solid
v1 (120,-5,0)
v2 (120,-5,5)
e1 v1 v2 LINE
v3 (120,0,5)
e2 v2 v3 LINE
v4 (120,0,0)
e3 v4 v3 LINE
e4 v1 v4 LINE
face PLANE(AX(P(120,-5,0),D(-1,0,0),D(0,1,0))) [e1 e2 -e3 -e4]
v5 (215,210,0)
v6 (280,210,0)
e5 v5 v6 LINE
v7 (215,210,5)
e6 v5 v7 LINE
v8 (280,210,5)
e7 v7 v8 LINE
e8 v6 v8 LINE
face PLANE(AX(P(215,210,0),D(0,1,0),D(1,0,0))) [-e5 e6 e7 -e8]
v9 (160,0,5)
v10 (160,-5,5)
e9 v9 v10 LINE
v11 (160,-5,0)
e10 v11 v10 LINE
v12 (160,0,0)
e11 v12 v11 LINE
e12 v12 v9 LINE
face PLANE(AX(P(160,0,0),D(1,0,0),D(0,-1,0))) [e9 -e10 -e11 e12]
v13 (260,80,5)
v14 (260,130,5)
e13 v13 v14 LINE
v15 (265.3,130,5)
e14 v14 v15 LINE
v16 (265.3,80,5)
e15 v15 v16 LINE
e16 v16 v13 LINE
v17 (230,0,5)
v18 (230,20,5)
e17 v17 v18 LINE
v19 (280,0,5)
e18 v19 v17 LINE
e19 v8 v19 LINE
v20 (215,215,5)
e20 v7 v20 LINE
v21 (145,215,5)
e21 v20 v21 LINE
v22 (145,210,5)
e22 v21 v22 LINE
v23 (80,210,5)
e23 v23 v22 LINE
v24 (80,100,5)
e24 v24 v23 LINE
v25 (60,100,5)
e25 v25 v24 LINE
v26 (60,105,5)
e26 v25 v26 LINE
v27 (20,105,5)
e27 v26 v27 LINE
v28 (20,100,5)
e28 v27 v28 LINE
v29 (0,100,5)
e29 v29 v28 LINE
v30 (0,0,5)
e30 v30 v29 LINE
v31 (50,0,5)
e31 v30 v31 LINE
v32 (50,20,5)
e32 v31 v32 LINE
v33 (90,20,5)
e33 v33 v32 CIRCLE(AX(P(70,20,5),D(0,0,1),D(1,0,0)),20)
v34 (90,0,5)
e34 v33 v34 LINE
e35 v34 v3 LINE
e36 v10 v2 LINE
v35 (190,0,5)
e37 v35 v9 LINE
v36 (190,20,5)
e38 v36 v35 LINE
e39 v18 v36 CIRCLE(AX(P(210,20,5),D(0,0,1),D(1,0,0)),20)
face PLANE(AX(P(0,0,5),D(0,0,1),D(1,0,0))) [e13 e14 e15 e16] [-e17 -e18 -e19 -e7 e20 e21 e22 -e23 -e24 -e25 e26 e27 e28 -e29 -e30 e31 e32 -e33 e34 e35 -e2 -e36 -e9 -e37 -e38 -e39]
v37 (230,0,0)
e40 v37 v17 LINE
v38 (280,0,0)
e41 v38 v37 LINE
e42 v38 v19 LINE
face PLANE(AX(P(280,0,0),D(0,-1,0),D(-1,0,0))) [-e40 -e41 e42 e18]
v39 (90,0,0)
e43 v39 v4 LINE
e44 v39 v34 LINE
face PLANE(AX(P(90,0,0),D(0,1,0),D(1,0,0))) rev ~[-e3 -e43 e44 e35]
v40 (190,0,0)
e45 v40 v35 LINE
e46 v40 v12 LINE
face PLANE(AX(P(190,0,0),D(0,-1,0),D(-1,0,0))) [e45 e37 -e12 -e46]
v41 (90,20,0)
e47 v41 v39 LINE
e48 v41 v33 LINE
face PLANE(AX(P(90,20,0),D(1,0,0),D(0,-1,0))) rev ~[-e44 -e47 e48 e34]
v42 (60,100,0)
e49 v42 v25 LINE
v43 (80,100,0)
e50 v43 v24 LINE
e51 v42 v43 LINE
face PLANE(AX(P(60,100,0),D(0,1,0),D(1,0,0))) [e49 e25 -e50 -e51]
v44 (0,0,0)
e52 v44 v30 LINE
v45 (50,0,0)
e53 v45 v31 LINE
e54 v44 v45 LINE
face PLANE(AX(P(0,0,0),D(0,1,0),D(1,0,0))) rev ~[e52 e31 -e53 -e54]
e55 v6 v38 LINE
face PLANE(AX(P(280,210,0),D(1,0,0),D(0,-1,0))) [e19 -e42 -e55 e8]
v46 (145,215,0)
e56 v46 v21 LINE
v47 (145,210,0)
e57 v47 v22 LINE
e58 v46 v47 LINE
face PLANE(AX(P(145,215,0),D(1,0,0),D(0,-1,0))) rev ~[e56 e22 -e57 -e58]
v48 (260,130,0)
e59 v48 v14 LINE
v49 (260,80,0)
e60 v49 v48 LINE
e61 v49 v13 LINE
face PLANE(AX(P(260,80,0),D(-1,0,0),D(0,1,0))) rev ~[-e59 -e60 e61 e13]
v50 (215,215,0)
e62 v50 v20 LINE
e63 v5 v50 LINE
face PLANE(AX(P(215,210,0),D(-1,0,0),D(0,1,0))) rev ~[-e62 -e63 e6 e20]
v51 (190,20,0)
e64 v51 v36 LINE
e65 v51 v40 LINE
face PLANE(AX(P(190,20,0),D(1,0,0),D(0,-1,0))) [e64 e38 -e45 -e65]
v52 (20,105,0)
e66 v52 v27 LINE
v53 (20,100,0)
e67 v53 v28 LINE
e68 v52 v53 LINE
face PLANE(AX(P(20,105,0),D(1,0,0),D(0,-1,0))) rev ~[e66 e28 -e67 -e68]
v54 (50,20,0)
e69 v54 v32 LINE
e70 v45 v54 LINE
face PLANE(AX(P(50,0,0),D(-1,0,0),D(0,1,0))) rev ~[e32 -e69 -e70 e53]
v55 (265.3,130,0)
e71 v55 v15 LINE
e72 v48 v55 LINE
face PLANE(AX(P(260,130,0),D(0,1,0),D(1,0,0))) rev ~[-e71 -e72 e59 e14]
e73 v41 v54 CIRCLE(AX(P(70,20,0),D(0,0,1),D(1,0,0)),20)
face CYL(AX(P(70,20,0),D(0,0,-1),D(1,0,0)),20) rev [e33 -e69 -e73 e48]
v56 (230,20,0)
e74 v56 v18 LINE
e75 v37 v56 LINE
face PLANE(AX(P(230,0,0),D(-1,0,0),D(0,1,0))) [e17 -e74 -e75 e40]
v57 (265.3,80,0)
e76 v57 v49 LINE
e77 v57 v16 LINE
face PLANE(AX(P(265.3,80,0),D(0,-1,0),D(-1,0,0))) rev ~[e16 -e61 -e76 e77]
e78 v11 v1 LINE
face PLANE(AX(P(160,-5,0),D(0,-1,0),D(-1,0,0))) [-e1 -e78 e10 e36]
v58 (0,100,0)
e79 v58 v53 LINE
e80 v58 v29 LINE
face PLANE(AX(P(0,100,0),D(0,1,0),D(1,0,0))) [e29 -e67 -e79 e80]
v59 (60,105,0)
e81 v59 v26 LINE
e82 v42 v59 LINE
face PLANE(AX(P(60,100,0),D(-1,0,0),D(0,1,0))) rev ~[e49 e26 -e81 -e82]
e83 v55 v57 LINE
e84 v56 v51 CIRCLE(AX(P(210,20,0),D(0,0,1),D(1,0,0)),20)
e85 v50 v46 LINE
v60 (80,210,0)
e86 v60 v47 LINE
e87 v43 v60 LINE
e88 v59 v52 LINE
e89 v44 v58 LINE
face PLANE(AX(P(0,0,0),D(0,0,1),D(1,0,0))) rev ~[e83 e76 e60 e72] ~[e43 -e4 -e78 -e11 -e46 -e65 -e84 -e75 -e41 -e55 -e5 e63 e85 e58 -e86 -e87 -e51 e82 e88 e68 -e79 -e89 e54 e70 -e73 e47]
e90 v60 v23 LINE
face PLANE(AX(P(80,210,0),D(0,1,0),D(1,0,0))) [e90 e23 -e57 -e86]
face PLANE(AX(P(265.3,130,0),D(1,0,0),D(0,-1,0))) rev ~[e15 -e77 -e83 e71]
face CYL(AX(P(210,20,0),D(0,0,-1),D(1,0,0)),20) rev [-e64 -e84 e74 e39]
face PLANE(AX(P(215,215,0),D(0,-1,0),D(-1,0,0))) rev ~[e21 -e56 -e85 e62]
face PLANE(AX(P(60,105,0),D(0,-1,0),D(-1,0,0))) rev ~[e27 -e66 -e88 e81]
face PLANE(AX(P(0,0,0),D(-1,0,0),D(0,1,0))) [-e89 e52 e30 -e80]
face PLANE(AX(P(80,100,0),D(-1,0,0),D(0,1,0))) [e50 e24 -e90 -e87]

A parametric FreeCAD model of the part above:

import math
import FreeCAD as App
import Part
import Sketcher
from FreeCAD import Vector
Q = App.Units.Quantity

doc = App.newDocument("Part")
body = doc.addObject("PartDesign::Body", "Body")

# Sketch on XY plane
sketch1 = doc.addObject("Sketcher::SketchObject", "Sketch")
body.addObject(sketch1)
sketch1.AttachmentSupport = (doc.XY_Plane, [""])
sketch1.MapMode = "FlatFace"
sketch1.addGeometry([
    Part.LineSegment(Vector(0, 100, 0), Vector(0, 0, 0)),  # 0
    Part.LineSegment(Vector(0, 0, 0), Vector(50, 0, 0)),  # 1
    Part.LineSegment(Vector(50, 0, 0), Vector(50, 20, 0)),  # 2
    Part.ArcOfCircle(Part.Circle(Vector(70, 20, 0), Vector(0, 0, 1), 20), math.radians(0), math.radians(180)),  # 3
    Part.LineSegment(Vector(90, 20, 0), Vector(90, 0, 0)),  # 4
    Part.LineSegment(Vector(90, 0, 0), Vector(120, 0, 0)),  # 5
    Part.LineSegment(Vector(120, 0, 0), Vector(120, -5, 0)),  # 6
    Part.LineSegment(Vector(120, -5, 0), Vector(160, -5, 0)),  # 7
    Part.LineSegment(Vector(160, -5, 0), Vector(160, 0, 0)),  # 8
    Part.LineSegment(Vector(160, 0, 0), Vector(190, 0, 0)),  # 9
    Part.LineSegment(Vector(190, 0, 0), Vector(190, 20, 0)),  # 10
    Part.ArcOfCircle(Part.Circle(Vector(210, 20, 0), Vector(0, 0, 1), 20), math.radians(0), math.radians(180)),  # 11
    Part.LineSegment(Vector(230, 20, 0), Vector(230, 0, 0)),  # 12
    Part.LineSegment(Vector(230, 0, 0), Vector(280, 0, 0)),  # 13
    Part.LineSegment(Vector(280, 0, 0), Vector(280, 210, 0)),  # 14
    Part.LineSegment(Vector(280, 210, 0), Vector(215, 210, 0)),  # 15
    Part.LineSegment(Vector(215, 210, 0), Vector(215, 215, 0)),  # 16
    Part.LineSegment(Vector(215, 215, 0), Vector(145, 215, 0)),  # 17
    Part.LineSegment(Vector(145, 215, 0), Vector(145, 210, 0)),  # 18
    Part.LineSegment(Vector(145, 210, 0), Vector(80, 210, 0)),  # 19
    Part.LineSegment(Vector(80, 210, 0), Vector(80, 100, 0)),  # 20
    Part.LineSegment(Vector(80, 100, 0), Vector(60, 100, 0)),  # 21
    Part.LineSegment(Vector(60, 100, 0), Vector(60, 105, 0)),  # 22
    Part.LineSegment(Vector(60, 105, 0), Vector(20, 105, 0)),  # 23
    Part.LineSegment(Vector(20, 105, 0), Vector(20, 100, 0)),  # 24
    Part.LineSegment(Vector(20, 100, 0), Vector(0, 100, 0)),  # 25
    Part.LineSegment(Vector(265, 130, 0), Vector(265, 80, 0)),  # 26
    Part.LineSegment(Vector(265, 80, 0), Vector(260, 80, 0)),  # 27
    Part.LineSegment(Vector(260, 80, 0), Vector(260, 130, 0)),  # 28
    Part.LineSegment(Vector(260, 130, 0), Vector(265, 130, 0)),  # 29
], False)
sketch1.addConstraint([
    Sketcher.Constraint("Coincident", 0, 2, 1, 1),
    Sketcher.Constraint("Coincident", 1, 2, 2, 1),
    Sketcher.Constraint("Tangent", 2, 2, 3, 2),
    Sketcher.Constraint("Tangent", 3, 1, 4, 1),
    Sketcher.Constraint("Coincident", 4, 2, 5, 1),
    Sketcher.Constraint("Coincident", 5, 2, 6, 1),
    Sketcher.Constraint("Coincident", 6, 2, 7, 1),
    Sketcher.Constraint("Coincident", 7, 2, 8, 1),
    Sketcher.Constraint("Coincident", 8, 2, 9, 1),
    Sketcher.Constraint("Coincident", 9, 2, 10, 1),
    Sketcher.Constraint("Tangent", 10, 2, 11, 2),
    Sketcher.Constraint("Tangent", 11, 1, 12, 1),
    Sketcher.Constraint("Coincident", 12, 2, 13, 1),
    Sketcher.Constraint("Coincident", 13, 2, 14, 1),
    Sketcher.Constraint("Coincident", 14, 2, 15, 1),
    Sketcher.Constraint("Coincident", 15, 2, 16, 1),
    Sketcher.Constraint("Coincident", 16, 2, 17, 1),
    Sketcher.Constraint("Coincident", 17, 2, 18, 1),
    Sketcher.Constraint("Coincident", 18, 2, 19, 1),
    Sketcher.Constraint("Coincident", 19, 2, 20, 1),
    Sketcher.Constraint("Coincident", 20, 2, 21, 1),
    Sketcher.Constraint("Coincident", 21, 2, 22, 1),
    Sketcher.Constraint("Coincident", 22, 2, 23, 1),
    Sketcher.Constraint("Coincident", 23, 2, 24, 1),
    Sketcher.Constraint("Coincident", 24, 2, 25, 1),
    Sketcher.Constraint("Coincident", 25, 2, 0, 1),
    Sketcher.Constraint("Coincident", 26, 2, 27, 1),
    Sketcher.Constraint("Coincident", 27, 2, 28, 1),
    Sketcher.Constraint("Coincident", 28, 2, 29, 1),
    Sketcher.Constraint("Coincident", 29, 2, 26, 1),
    Sketcher.Constraint("Vertical", 0),
    Sketcher.Constraint("Horizontal", 1),
    Sketcher.Constraint("Vertical", 2),
    Sketcher.Constraint("Vertical", 4),
    Sketcher.Constraint("Horizontal", 5),
    Sketcher.Constraint("Vertical", 6),
    Sketcher.Constraint("Horizontal", 7),
    Sketcher.Constraint("Vertical", 8),
    Sketcher.Constraint("Horizontal", 9),
    Sketcher.Constraint("Vertical", 10),
    Sketcher.Constraint("Vertical", 12),
    Sketcher.Constraint("Horizontal", 13),
    Sketcher.Constraint("Vertical", 14),
    Sketcher.Constraint("Horizontal", 15),
    Sketcher.Constraint("Vertical", 16),
    Sketcher.Constraint("Horizontal", 17),
    Sketcher.Constraint("Vertical", 18),
    Sketcher.Constraint("Horizontal", 19),
    Sketcher.Constraint("Vertical", 20),
    Sketcher.Constraint("Horizontal", 21),
    Sketcher.Constraint("Vertical", 22),
    Sketcher.Constraint("Horizontal", 23),
    Sketcher.Constraint("Vertical", 24),
    Sketcher.Constraint("Horizontal", 25),
    Sketcher.Constraint("Vertical", 26),
    Sketcher.Constraint("Horizontal", 27),
    Sketcher.Constraint("Vertical", 28),
    Sketcher.Constraint("Horizontal", 29),
    Sketcher.Constraint("Coincident", 0, 2, -1, 1),
    Sketcher.Constraint("Equal", 3, 11),
    Sketcher.Constraint("PointOnObject", 4, 2, -1),
    Sketcher.Constraint("PointOnObject", 8, 2, -1),
    Sketcher.Constraint("PointOnObject", 12, 2, -1),
    Sketcher.Constraint("Horizontal", 3, 3, 11, 3),
    Sketcher.Constraint("Horizontal", 15, 2, 18, 2),
    Sketcher.Constraint("Horizontal", 21, 2, 24, 2),
    Sketcher.Constraint("Equal", 5, 9),
    Sketcher.Constraint("Equal", 1, 13),
    Sketcher.Constraint("Equal", 15, 19),
    Sketcher.Constraint("Equal", 7, 23),
    Sketcher.Constraint("Equal", 21, 25),
    Sketcher.Constraint("Equal", 25, 2),
    Sketcher.Constraint("Equal", 8, 16),
    Sketcher.Constraint("Equal", 18, 22),
    Sketcher.Constraint("Equal", 13, 26),
    Sketcher.Constraint("Radius", 3, Q("20 mm")),
    Sketcher.Constraint("DistanceX", 1, 1, 1, 2, Q("50 mm")),
    Sketcher.Constraint("DistanceX", 7, 1, 7, 2, Q("40 mm")),
    Sketcher.Constraint("DistanceX", 17, 2, 17, 1, Q("70 mm")),
    Sketcher.Constraint("DistanceX", 21, 2, 21, 1, Q("20 mm")),
    Sketcher.Constraint("DistanceY", 0, 2, 0, 1, Q("100 mm")),
    Sketcher.Constraint("DistanceY", 6, 2, 6, 1, Q("5 mm")),
    Sketcher.Constraint("DistanceY", 20, 2, 20, 1, Q("110 mm")),
    Sketcher.Constraint("DistanceX", 27, 2, 27, 1, Q("5.3 mm")),
    Sketcher.Constraint("DistanceY", -1, 1, 26, 2, Q("80 mm")),
    Sketcher.Constraint("DistanceX", 3, 3, 5, 2, Q("50 mm")),
    Sketcher.Constraint("DistanceX", 11, 3, 27, 2, Q("50 mm")),
])
pad1 = doc.addObject("PartDesign::Pad", "Pad")
body.addObject(pad1)
pad1.Profile = sketch1
pad1.Length = 5

doc.recompute()
